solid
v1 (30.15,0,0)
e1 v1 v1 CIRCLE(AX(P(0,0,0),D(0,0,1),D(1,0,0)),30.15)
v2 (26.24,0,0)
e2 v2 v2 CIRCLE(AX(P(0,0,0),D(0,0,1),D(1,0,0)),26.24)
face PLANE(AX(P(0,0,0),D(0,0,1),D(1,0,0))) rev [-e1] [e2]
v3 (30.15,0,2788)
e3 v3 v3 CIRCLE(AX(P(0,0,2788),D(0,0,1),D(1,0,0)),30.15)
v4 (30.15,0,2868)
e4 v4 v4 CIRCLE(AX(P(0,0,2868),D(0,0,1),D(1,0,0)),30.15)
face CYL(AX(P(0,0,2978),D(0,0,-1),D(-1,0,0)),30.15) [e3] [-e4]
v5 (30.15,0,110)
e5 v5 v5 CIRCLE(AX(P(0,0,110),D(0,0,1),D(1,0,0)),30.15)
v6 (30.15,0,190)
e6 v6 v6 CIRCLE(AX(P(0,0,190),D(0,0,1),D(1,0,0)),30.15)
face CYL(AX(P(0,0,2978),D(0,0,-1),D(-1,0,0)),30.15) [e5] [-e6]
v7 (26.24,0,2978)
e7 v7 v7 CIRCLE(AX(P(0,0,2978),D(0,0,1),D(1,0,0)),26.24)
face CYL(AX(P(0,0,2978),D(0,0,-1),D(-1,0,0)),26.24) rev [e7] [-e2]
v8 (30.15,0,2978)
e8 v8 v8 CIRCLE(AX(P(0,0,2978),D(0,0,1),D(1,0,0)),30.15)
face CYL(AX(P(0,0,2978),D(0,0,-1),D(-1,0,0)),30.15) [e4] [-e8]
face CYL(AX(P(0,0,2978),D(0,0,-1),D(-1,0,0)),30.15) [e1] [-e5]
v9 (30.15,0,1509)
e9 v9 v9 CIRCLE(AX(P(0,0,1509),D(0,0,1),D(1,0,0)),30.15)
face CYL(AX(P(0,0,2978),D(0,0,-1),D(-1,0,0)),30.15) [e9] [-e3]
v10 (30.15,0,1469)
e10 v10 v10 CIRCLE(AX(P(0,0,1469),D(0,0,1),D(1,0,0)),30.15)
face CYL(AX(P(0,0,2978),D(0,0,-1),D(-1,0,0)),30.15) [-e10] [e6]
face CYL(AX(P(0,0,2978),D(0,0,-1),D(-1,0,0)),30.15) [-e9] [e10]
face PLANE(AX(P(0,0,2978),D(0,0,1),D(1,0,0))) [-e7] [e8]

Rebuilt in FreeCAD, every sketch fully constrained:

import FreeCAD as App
import Part
import Sketcher
Q = App.Units.Quantity

doc = App.newDocument("Part")
params = doc.addObject("Spreadsheet::Sheet", "Params")
for row, (alias, value) in enumerate([
    ("sketch1_diameter", "60.3 mm"),
    ("sketch1_diameter2", "52.48 mm"),
    ("pad1_length", "2978 mm"),
], start=1):
    params.set(f"A{row}", alias)
    params.set(f"B{row}", "=" + value)
    params.setAlias(f"B{row}", alias)

body = doc.addObject("PartDesign::Body", "Body")

# Sketch on XY plane
sketch1 = doc.addObject("Sketcher::SketchObject", "Sketch")
body.addObject(sketch1)
sketch1.AttachmentSupport = (doc.XY_Plane, [""])
sketch1.MapMode = "FlatFace"
sketch1.addGeometry([
    Part.Circle(App.Vector(0, 0, 0), App.Vector(0, 0, 1), 30),
    Part.Circle(App.Vector(0, 0, 0), App.Vector(0, 0, 1), 26),
], False)
sketch1.addConstraint([
    Sketcher.Constraint("Coincident", 0, 3, -1, 1),
    Sketcher.Constraint("Coincident", 1, 3, -1, 1),
    Sketcher.Constraint("Diameter", 0, Q("60.3 mm")),
    Sketcher.Constraint("Diameter", 1, Q("52.48 mm")),
])
sketch1.setExpression("Constraints[2]", "Params.sketch1_diameter")
sketch1.setExpression("Constraints[3]", "Params.sketch1_diameter2")
pad1 = doc.addObject("PartDesign::Pad", "Pad")
body.addObject(pad1)
pad1.Profile = sketch1
pad1.setExpression("Length", "Params.pad1_length")

doc.recompute()
